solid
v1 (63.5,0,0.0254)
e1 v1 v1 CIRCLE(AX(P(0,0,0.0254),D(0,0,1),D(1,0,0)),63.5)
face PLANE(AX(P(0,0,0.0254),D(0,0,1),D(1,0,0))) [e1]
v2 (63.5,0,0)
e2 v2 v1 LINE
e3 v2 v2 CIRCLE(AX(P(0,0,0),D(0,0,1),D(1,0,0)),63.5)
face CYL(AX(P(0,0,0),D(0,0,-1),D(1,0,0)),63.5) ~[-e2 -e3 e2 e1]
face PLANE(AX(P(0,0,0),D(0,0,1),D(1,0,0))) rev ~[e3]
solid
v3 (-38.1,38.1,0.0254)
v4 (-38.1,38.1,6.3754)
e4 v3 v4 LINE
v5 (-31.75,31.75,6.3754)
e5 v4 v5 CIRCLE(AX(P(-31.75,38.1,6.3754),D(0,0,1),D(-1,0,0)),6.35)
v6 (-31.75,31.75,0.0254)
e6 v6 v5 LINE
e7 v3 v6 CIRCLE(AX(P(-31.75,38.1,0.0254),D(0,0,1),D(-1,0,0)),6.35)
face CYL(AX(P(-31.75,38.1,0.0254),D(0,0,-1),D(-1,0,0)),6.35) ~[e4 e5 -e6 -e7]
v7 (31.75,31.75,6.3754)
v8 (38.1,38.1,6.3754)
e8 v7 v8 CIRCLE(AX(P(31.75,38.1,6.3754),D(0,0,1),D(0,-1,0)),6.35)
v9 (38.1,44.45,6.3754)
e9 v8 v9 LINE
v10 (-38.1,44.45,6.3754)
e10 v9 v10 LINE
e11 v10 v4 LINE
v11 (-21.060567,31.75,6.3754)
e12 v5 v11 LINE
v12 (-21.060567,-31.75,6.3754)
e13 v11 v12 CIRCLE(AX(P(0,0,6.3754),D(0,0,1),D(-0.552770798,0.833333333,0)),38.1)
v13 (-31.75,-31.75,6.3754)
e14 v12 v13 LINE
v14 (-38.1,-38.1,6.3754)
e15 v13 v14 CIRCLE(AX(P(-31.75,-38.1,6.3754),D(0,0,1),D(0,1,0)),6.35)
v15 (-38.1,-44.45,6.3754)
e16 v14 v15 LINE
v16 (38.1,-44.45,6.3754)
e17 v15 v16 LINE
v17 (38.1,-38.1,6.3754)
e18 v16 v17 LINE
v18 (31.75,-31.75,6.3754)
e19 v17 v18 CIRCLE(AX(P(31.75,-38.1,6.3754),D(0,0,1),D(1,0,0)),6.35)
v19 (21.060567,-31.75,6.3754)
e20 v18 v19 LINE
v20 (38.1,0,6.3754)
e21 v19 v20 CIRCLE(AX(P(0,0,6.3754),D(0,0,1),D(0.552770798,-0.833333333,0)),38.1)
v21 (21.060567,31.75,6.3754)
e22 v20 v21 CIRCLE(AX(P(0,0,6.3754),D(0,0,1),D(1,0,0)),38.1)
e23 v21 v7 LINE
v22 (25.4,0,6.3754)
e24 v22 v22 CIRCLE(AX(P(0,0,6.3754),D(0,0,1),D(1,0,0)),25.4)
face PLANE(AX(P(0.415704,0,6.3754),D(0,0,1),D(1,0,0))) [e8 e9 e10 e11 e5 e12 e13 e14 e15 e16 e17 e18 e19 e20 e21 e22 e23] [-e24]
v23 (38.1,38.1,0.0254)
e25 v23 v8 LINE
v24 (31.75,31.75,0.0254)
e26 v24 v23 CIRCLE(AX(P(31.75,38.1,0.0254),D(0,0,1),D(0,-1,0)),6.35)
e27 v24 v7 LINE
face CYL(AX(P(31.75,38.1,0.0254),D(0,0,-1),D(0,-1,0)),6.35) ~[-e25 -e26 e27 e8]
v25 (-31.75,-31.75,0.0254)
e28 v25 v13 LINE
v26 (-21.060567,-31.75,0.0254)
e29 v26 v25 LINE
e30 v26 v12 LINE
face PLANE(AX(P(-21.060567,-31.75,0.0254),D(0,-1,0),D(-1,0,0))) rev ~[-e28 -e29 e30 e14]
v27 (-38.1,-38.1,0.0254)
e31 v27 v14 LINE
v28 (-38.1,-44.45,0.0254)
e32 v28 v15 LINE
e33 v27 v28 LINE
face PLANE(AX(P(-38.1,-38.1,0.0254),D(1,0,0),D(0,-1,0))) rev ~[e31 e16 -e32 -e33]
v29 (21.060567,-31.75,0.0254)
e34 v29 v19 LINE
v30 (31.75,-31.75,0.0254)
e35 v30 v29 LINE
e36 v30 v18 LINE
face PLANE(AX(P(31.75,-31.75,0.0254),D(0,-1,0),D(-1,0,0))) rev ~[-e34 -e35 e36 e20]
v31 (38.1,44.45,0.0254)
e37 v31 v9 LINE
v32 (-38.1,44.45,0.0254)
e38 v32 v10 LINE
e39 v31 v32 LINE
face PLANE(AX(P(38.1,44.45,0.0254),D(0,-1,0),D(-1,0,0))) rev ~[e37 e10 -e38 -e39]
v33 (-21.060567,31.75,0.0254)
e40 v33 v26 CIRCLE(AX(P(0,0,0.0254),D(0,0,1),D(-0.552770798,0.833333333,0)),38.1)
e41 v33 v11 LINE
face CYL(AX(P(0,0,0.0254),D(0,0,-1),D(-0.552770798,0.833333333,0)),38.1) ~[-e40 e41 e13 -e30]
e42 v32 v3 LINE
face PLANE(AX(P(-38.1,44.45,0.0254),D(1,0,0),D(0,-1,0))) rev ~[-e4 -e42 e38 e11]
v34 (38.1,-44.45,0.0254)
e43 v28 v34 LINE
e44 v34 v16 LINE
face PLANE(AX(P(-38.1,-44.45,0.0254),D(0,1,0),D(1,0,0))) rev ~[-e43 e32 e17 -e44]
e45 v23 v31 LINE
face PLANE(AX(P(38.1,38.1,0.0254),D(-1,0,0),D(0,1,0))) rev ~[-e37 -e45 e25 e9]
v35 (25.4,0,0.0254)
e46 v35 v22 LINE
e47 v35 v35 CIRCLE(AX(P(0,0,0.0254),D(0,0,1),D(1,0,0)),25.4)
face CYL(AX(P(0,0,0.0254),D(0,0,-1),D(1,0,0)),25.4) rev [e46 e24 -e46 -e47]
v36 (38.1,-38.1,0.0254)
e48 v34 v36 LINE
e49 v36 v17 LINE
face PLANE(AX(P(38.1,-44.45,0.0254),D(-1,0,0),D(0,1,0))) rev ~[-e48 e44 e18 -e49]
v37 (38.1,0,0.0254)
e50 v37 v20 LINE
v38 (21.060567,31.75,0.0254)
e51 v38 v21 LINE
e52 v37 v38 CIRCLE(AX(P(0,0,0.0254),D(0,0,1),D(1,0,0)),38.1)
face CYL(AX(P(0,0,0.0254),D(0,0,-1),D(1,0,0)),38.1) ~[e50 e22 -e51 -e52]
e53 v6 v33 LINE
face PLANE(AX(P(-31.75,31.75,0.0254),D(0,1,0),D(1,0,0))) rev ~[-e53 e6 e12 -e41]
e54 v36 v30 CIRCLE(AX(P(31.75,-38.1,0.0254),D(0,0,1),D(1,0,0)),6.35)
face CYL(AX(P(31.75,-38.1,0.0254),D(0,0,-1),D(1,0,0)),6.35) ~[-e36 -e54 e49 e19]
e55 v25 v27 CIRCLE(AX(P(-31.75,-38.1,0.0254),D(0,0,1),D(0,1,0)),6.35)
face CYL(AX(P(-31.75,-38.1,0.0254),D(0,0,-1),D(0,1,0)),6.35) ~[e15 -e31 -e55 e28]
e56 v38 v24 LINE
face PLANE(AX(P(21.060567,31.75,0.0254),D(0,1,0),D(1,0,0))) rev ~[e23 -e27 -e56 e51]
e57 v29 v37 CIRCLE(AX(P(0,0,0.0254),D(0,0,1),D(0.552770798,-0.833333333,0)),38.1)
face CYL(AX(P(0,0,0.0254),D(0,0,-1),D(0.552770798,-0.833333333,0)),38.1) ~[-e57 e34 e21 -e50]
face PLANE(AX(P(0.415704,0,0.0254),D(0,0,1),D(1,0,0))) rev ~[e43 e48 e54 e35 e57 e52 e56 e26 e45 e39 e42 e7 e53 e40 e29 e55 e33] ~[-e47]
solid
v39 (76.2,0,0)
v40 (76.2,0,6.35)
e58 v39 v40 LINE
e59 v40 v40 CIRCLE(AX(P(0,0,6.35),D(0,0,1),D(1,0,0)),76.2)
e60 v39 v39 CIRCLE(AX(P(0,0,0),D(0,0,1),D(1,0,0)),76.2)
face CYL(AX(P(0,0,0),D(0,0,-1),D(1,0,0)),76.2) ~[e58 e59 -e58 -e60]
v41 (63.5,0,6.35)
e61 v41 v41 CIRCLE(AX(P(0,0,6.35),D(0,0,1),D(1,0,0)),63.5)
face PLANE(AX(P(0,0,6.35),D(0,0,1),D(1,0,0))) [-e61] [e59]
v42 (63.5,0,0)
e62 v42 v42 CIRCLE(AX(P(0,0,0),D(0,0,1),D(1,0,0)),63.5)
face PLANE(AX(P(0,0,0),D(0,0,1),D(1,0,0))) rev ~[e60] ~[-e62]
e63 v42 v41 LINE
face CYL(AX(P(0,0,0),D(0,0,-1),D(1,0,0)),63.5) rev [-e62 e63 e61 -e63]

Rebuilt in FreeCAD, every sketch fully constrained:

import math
import FreeCAD as App
import Part
import Sketcher
from FreeCAD import Vector
Q = App.Units.Quantity

doc = App.newDocument("Part")
body = doc.addObject("PartDesign::Body", "Body")

# Sketch on XY plane
sketch1 = body.newObject("Sketcher::SketchObject", "Sketch")
sketch1.AttachmentSupport = (doc.getObject("XY_Plane"), [""])
sketch1.MapMode = "FlatFace"
sketch1.addGeometry(Part.Circle(Vector(0, 0, 0), Vector(0, 0, 1), 64), False)
sketch1.addConstraint(Sketcher.Constraint("Coincident", 0, 3, -1, 1))
sketch1.addConstraint(Sketcher.Constraint("Diameter", 0, Q("5 in")))
pad1 = body.newObject("PartDesign::Pad", "Pad")
pad1.Profile = sketch1
pad1.Length = Q("0.001 in")
body2 = doc.addObject("PartDesign::Body", "Body001")

# Sketch on XY plane
sketch2 = body2.newObject("Sketcher::SketchObject", "Sketch001")
sketch2.AttachmentSupport = (doc.getObject("XY_Plane001"), [""])
sketch2.MapMode = "FlatFace"
sketch2.AttachmentOffset = App.Placement(Vector(0, 0, 0.001 * 25.4), App.Rotation())
sketch2.addGeometry(Part.ArcOfCircle(Part.Circle(Vector(0, 0, 0), Vector(0, 0, 1), 38), math.radians(-56), math.radians(0)), False)
sketch2.addGeometry(Part.ArcOfCircle(Part.Circle(Vector(0, 0, 0), Vector(0, 0, 1), 38), math.radians(0), math.radians(56)), False)
sketch2.addGeometry(Part.LineSegment(Vector(21, 32, 0), Vector(32, 32, 0)), False)
sketch2.addGeometry(Part.ArcOfCircle(Part.Circle(Vector(32, 38, 0), Vector(0, 0, 1), 6), math.radians(-90), math.radians(0)), False)
sketch2.addGeometry(Part.LineSegment(Vector(38, 38, 0), Vector(38, 44, 0)), False)
sketch2.addGeometry(Part.LineSegment(Vector(38, 44, 0), Vector(-38, 44, 0)), False)
sketch2.addGeometry(Part.LineSegment(Vector(-38, 44, 0), Vector(-38, 38, 0)), False)
sketch2.addGeometry(Part.ArcOfCircle(Part.Circle(Vector(-32, 38, 0), Vector(0, 0, 1), 6), math.radians(180), math.radians(270)), False)
sketch2.addGeometry(Part.LineSegment(Vector(-32, 32, 0), Vector(-21, 32, 0)), False)
sketch2.addGeometry(Part.ArcOfCircle(Part.Circle(Vector(0, 0, 0), Vector(0, 0, 1), 38), math.radians(124), math.radians(236)), False)
sketch2.addGeometry(Part.LineSegment(Vector(-21, -32, 0), Vector(-32, -32, 0)), False)
sketch2.addGeometry(Part.ArcOfCircle(Part.Circle(Vector(-32, -38, 0), Vector(0, 0, 1), 6), math.radians(90), math.radians(180)), False)
sketch2.addGeometry(Part.LineSegment(Vector(-38, -38, 0), Vector(-38, -44, 0)), False)
sketch2.addGeometry(Part.LineSegment(Vector(-38, -44, 0), Vector(38, -44, 0)), False)
sketch2.addGeometry(Part.LineSegment(Vector(38, -44, 0), Vector(38, -38, 0)), False)
sketch2.addGeometry(Part.ArcOfCircle(Part.Circle(Vector(32, -38, 0), Vector(0, 0, 1), 6), math.radians(0), math.radians(90)), False)
sketch2.addGeometry(Part.LineSegment(Vector(32, -32, 0), Vector(21, -32, 0)), False)
sketch2.addGeometry(Part.Circle(Vector(0, 0, 0), Vector(0, 0, 1), 25), False)
sketch2.addConstraint(Sketcher.Constraint("Tangent", 0, 2, 1, 1))
sketch2.addConstraint(Sketcher.Constraint("Coincident", 1, 2, 2, 1))
sketch2.addConstraint(Sketcher.Constraint("Tangent", 2, 2, 3, 1))
sketch2.addConstraint(Sketcher.Constraint("Tangent", 3, 2, 4, 1))
sketch2.addConstraint(Sketcher.Constraint("Coincident", 4, 2, 5, 1))
sketch2.addConstraint(Sketcher.Constraint("Coincident", 5, 2, 6, 1))
sketch2.addConstraint(Sketcher.Constraint("Tangent", 6, 2, 7, 1))
sketch2.addConstraint(Sketcher.Constraint("Tangent", 7, 2, 8, 1))
sketch2.addConstraint(Sketcher.Constraint("Coincident", 8, 2, 9, 1))
sketch2.addConstraint(Sketcher.Constraint("Coincident", 9, 2, 10, 1))
sketch2.addConstraint(Sketcher.Constraint("Tangent", 10, 2, 11, 1))
sketch2.addConstraint(Sketcher.Constraint("Tangent", 11, 2, 12, 1))
sketch2.addConstraint(Sketcher.Constraint("Coincident", 12, 2, 13, 1))
sketch2.addConstraint(Sketcher.Constraint("Coincident", 13, 2, 14, 1))
sketch2.addConstraint(Sketcher.Constraint("Tangent", 14, 2, 15, 1))
sketch2.addConstraint(Sketcher.Constraint("Tangent", 15, 2, 16, 1))
sketch2.addConstraint(Sketcher.Constraint("Coincident", 16, 2, 0, 1))
sketch2.addConstraint(Sketcher.Constraint("Horizontal", 2))
sketch2.addConstraint(Sketcher.Constraint("Vertical", 4))
sketch2.addConstraint(Sketcher.Constraint("Horizontal", 5))
sketch2.addConstraint(Sketcher.Constraint("Vertical", 6))
sketch2.addConstraint(Sketcher.Constraint("Horizontal", 8))
sketch2.addConstraint(Sketcher.Constraint("Horizontal", 10))
sketch2.addConstraint(Sketcher.Constraint("Vertical", 12))
sketch2.addConstraint(Sketcher.Constraint("Horizontal", 13))
sketch2.addConstraint(Sketcher.Constraint("Vertical", 14))
sketch2.addConstraint(Sketcher.Constraint("Horizontal", 16))
sketch2.addConstraint(Sketcher.Constraint("Coincident", 0, 3, -1, 1))
sketch2.addConstraint(Sketcher.Constraint("Coincident", 9, 3, -1, 1))
sketch2.addConstraint(Sketcher.Constraint("Coincident", 17, 3, -1, 1))
sketch2.addConstraint(Sketcher.Constraint("Equal", 0, 1))
sketch2.addConstraint(Sketcher.Constraint("Equal", 3, 7))
sketch2.addConstraint(Sketcher.Constraint("Equal", 1, 9))
sketch2.addConstraint(Sketcher.Constraint("Equal", 7, 11))
sketch2.addConstraint(Sketcher.Constraint("Equal", 11, 15))
sketch2.addConstraint(Sketcher.Constraint("Symmetric", 3, 3, 11, 3, -1, 1))
sketch2.addConstraint(Sketcher.Constraint("Symmetric", 7, 3, 15, 3, -1, 1))
sketch2.addConstraint(Sketcher.Constraint("Symmetric", 3, 3, 7, 3, -2))
sketch2.addConstraint(Sketcher.Constraint("PointOnObject", 0, 2, -1))
sketch2.addConstraint(Sketcher.Constraint("Vertical", 0, 2, 3, 2))
sketch2.addConstraint(Sketcher.Constraint("Equal", 6, 12))
sketch2.addConstraint(Sketcher.Constraint("Diameter", 17, Q("2 in")))
sketch2.addConstraint(Sketcher.Constraint("Radius", 0, Q("1.5 in")))
sketch2.addConstraint(Sketcher.Constraint("Radius", 3, Q("0.25 in")))
sketch2.addConstraint(Sketcher.Constraint("DistanceY", 11, 3, 7, 3, Q("3 in")))
sketch2.addConstraint(Sketcher.Constraint("DistanceY", 4, 1, 4, 2, Q("0.25 in")))
pad2 = body2.newObject("PartDesign::Pad", "Pad001")
pad2.Profile = sketch2
pad2.Length = Q("0.25 in")
body3 = doc.addObject("PartDesign::Body", "Body002")

# Sketch on XY plane
sketch3 = body3.newObject("Sketcher::SketchObject", "Sketch002")
sketch3.AttachmentSupport = (doc.getObject("XY_Plane002"), [""])
sketch3.MapMode = "FlatFace"
sketch3.addGeometry(Part.Circle(Vector(0, 0, 0), Vector(0, 0, 1), 76), False)
sketch3.addGeometry(Part.Circle(Vector(0, 0, 0), Vector(0, 0, 1), 64), False)
sketch3.addConstraint(Sketcher.Constraint("Coincident", 0, 3, -1, 1))
sketch3.addConstraint(Sketcher.Constraint("Coincident", 1, 3, -1, 1))
sketch3.addConstraint(Sketcher.Constraint("Diameter", 0, Q("6 in")))
sketch3.addConstraint(Sketcher.Constraint("Diameter", 1, Q("5 in")))
pad3 = body3.newObject("PartDesign::Pad", "Pad002")
pad3.Profile = sketch3
pad3.Length = Q("0.25 in")

doc.recompute()
